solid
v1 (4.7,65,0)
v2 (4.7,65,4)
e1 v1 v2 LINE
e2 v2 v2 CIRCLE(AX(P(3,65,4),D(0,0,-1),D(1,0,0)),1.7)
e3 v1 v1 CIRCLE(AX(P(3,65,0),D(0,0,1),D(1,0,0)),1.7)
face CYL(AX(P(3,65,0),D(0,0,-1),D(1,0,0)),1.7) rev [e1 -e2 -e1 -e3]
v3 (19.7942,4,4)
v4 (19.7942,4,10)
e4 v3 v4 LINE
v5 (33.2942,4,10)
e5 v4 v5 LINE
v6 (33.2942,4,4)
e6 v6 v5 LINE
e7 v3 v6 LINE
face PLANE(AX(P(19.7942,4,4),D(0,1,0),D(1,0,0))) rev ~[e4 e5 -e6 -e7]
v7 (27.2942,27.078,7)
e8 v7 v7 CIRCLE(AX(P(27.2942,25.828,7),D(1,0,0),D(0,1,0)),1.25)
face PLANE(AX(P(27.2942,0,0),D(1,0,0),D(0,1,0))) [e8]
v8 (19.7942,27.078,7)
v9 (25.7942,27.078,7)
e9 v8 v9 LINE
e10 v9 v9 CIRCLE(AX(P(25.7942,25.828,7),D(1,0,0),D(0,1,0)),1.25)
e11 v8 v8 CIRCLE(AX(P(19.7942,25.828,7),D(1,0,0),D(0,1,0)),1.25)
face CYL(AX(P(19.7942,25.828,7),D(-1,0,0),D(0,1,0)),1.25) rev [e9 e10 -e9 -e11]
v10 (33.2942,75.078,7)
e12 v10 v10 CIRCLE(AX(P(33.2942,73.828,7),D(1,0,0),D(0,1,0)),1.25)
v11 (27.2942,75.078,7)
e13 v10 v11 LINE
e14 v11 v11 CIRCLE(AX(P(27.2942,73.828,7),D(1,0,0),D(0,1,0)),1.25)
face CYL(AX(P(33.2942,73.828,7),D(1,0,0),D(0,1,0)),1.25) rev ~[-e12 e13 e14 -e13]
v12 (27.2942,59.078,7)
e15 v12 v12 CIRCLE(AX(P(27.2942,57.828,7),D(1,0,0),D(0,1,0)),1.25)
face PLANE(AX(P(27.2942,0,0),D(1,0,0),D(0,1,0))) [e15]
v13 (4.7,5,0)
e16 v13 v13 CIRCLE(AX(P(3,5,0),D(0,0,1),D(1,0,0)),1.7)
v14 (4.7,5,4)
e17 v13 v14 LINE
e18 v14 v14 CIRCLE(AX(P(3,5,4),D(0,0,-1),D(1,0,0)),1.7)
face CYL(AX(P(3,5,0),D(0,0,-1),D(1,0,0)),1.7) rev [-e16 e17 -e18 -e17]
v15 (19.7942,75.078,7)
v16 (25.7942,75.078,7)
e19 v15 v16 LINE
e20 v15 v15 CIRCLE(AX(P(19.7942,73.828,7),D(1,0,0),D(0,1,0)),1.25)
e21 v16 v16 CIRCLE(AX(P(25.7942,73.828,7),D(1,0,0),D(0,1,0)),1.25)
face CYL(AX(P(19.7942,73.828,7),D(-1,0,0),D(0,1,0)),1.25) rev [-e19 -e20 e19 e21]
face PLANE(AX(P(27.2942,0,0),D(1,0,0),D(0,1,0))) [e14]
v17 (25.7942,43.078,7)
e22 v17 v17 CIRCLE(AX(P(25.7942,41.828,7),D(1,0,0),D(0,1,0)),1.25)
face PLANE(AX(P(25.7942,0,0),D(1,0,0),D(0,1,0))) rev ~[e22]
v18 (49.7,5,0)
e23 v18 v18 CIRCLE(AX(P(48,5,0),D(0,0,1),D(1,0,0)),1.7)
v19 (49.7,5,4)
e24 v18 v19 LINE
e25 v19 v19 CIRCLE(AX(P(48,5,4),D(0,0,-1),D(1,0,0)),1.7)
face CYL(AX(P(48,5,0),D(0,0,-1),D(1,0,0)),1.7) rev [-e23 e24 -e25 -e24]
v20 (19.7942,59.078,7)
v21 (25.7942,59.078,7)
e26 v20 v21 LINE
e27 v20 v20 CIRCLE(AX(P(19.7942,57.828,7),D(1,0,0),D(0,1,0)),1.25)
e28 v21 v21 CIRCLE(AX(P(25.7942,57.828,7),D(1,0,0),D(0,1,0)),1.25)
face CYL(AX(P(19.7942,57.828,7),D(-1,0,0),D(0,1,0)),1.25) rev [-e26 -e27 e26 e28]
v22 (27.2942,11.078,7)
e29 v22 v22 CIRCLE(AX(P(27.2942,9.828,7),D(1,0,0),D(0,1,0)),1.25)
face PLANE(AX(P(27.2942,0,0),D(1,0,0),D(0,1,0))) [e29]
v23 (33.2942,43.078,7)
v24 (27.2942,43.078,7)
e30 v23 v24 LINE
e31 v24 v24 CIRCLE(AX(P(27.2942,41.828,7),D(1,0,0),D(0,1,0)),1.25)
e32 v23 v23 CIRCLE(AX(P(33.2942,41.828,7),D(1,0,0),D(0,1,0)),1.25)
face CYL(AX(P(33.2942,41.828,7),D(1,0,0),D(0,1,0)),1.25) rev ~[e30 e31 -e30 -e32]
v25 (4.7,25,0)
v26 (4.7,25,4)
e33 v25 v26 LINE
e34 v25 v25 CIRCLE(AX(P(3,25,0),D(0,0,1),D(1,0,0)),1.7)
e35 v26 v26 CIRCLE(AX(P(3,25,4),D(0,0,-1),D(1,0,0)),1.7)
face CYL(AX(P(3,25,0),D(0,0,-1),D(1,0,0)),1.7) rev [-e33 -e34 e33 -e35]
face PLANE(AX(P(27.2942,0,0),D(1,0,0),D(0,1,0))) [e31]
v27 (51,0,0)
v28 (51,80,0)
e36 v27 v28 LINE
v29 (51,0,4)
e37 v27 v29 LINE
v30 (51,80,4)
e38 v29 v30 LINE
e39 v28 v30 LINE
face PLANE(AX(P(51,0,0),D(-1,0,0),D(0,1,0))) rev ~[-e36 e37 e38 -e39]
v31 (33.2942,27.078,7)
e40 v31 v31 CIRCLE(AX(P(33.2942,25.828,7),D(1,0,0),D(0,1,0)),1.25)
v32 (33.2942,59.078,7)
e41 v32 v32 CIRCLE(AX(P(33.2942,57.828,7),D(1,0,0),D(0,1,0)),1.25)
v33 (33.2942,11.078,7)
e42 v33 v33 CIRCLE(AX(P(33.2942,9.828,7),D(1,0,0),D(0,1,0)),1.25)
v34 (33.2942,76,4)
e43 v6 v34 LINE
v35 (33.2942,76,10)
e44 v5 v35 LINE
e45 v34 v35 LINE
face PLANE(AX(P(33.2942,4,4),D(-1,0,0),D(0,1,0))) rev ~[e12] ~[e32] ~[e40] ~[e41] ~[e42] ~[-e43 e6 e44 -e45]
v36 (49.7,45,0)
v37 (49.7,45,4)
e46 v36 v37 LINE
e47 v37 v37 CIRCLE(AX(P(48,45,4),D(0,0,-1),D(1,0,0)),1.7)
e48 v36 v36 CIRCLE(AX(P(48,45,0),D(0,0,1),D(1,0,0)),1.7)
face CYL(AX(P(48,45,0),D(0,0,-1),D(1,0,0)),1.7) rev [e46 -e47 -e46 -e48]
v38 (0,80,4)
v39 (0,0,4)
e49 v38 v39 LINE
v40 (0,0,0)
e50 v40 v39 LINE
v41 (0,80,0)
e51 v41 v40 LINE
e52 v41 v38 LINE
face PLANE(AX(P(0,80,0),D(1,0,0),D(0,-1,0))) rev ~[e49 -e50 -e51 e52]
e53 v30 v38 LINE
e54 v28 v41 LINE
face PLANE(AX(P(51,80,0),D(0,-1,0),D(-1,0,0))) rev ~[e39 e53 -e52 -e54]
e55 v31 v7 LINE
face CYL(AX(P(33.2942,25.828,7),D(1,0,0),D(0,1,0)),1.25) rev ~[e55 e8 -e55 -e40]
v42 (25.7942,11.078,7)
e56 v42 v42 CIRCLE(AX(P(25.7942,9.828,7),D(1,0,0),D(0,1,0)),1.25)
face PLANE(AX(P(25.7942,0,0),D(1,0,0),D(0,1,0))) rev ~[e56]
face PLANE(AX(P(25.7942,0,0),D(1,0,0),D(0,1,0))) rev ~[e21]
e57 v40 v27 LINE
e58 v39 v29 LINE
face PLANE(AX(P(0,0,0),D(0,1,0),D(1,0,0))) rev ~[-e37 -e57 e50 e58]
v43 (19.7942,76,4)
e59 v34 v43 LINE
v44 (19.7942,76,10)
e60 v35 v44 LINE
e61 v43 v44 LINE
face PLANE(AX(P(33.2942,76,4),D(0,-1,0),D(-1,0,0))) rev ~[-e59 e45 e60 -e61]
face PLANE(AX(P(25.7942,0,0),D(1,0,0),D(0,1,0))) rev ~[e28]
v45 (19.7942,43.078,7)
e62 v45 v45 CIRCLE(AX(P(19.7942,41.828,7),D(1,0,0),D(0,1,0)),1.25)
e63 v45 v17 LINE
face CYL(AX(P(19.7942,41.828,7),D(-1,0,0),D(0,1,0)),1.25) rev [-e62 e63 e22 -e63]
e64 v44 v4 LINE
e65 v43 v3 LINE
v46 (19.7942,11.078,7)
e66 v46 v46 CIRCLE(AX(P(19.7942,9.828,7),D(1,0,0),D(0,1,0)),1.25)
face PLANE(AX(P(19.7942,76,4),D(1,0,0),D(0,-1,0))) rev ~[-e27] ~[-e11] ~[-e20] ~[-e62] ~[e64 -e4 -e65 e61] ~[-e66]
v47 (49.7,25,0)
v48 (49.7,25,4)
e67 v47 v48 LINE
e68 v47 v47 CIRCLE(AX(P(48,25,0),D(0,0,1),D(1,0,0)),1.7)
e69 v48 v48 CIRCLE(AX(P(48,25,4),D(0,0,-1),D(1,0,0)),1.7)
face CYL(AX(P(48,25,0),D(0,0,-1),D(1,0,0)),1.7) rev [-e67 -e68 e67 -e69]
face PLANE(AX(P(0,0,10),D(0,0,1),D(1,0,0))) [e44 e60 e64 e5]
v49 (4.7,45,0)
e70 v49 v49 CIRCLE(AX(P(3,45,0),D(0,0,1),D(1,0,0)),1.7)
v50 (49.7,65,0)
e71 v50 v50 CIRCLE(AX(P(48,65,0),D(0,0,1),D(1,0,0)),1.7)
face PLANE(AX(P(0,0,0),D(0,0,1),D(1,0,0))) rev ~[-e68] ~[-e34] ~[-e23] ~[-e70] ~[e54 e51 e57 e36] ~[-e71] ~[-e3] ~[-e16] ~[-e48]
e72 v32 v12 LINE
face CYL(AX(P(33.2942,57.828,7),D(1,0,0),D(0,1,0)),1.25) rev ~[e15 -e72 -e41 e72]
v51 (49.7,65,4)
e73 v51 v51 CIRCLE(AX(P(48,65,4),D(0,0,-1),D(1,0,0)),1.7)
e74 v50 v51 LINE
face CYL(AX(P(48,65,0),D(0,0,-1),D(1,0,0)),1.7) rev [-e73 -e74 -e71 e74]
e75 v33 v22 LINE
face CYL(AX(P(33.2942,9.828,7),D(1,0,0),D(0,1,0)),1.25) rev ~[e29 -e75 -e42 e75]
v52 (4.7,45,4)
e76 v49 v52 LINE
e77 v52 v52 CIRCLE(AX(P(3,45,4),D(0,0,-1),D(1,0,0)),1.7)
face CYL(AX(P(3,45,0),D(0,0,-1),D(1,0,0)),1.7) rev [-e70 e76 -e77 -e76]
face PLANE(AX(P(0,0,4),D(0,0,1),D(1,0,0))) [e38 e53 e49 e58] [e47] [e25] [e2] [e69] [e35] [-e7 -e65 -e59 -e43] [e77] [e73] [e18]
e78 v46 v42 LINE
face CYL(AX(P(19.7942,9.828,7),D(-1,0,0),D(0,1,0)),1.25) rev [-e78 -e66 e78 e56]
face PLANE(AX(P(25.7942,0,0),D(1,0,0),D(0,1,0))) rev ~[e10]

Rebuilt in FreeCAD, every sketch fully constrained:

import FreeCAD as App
import Part
import Sketcher

V = App.Vector
Q = App.Units.Quantity

doc = App.newDocument("Part")
body = doc.addObject("PartDesign::Body", "Body")

# Sketch on XY plane
sketch1 = body.newObject("Sketcher::SketchObject", "Sketch")
sketch1.AttachmentSupport = (doc.getObject("XY_Plane"), [""])
sketch1.MapMode = "FlatFace"
sketch1.addGeometry([
    Part.LineSegment(V(0, 80, 0), V(0, 0, 0)),
    Part.LineSegment(V(0, 0, 0), V(51, 0, 0)),
    Part.LineSegment(V(51, 0, 0), V(51, 80, 0)),
    Part.LineSegment(V(51, 80, 0), V(0, 80, 0)),
], False)
sketch1.addConstraint([
    Sketcher.Constraint("Coincident", 0, 2, 1, 1),
    Sketcher.Constraint("Coincident", 1, 2, 2, 1),
    Sketcher.Constraint("Coincident", 2, 2, 3, 1),
    Sketcher.Constraint("Coincident", 3, 2, 0, 1),
    Sketcher.Constraint("Vertical", 0),
    Sketcher.Constraint("Horizontal", 1),
    Sketcher.Constraint("Vertical", 2),
    Sketcher.Constraint("Horizontal", 3),
    Sketcher.Constraint("Coincident", 0, 2, -1, 1),
    Sketcher.Constraint("DistanceX", 1, 1, 1, 2, Q("51 mm")),
    Sketcher.Constraint("DistanceY", 0, 2, 0, 1, Q("80 mm")),
])
pad1 = body.newObject("PartDesign::Pad", "Pad")
pad1.Profile = sketch1
pad1.Length = 4

# Sketch on XY plane
sketch2 = body.newObject("Sketcher::SketchObject", "Sketch001")
sketch2.AttachmentSupport = (doc.getObject("XY_Plane"), [""])
sketch2.MapMode = "FlatFace"
sketch2.AttachmentOffset = App.Placement(V(0, 0, 4), App.Rotation())
sketch2.addGeometry([
    Part.LineSegment(V(20, 76, 0), V(20, 4, 0)),
    Part.LineSegment(V(20, 4, 0), V(33, 4, 0)),
    Part.LineSegment(V(33, 4, 0), V(33, 76, 0)),
    Part.LineSegment(V(33, 76, 0), V(20, 76, 0)),
], False)
sketch2.addConstraint([
    Sketcher.Constraint("Coincident", 0, 2, 1, 1),
    Sketcher.Constraint("Coincident", 1, 2, 2, 1),
    Sketcher.Constraint("Coincident", 2, 2, 3, 1),
    Sketcher.Constraint("Coincident", 3, 2, 0, 1),
    Sketcher.Constraint("Vertical", 0),
    Sketcher.Constraint("Horizontal", 1),
    Sketcher.Constraint("Vertical", 2),
    Sketcher.Constraint("Horizontal", 3),
    Sketcher.Constraint("DistanceY", 0, 2, 0, 1, Q("72 mm")),
    Sketcher.Constraint("DistanceX", 1, 1, 1, 2, Q("13.5 mm")),
    Sketcher.Constraint("DistanceY", -1, 1, 0, 2, Q("4 mm")),
    Sketcher.Constraint("DistanceX", -1, 1, 0, 2, Q("19.7942 mm")),
])
pad2 = body.newObject("PartDesign::Pad", "Pad001")
pad2.Profile = sketch2
pad2.Length = 6

# Sketch on XY plane
sketch3 = body.newObject("Sketcher::SketchObject", "Sketch002")
sketch3.AttachmentSupport = (doc.getObject("XY_Plane"), [""])
sketch3.MapMode = "FlatFace"
sketch3.addGeometry([
    Part.Circle(V(3, 5, 0), V(0, 0, 1), 1.7),  # 0
    Part.Circle(V(3, 25, 0), V(0, 0, 1), 1.7),  # 1
    Part.Circle(V(3, 45, 0), V(0, 0, 1), 1.7),  # 2
    Part.Circle(V(3, 65, 0), V(0, 0, 1), 1.7),  # 3
    Part.Circle(V(48, 5, 0), V(0, 0, 1), 1.7),  # 4
    Part.Circle(V(48, 25, 0), V(0, 0, 1), 1.7),  # 5
    Part.Circle(V(48, 45, 0), V(0, 0, 1), 1.7),  # 6
    Part.Circle(V(48, 65, 0), V(0, 0, 1), 1.7),  # 7
], False)
sketch3.addConstraint([
    Sketcher.Constraint("Equal", 0, 1),
    Sketcher.Constraint("Equal", 1, 2),
    Sketcher.Constraint("Equal", 2, 3),
    Sketcher.Constraint("Equal", 3, 4),
    Sketcher.Constraint("Equal", 4, 5),
    Sketcher.Constraint("Equal", 5, 6),
    Sketcher.Constraint("Equal", 6, 7),
    Sketcher.Constraint("Horizontal", 0, 3, 4, 3),
    Sketcher.Constraint("Horizontal", 1, 3, 5, 3),
    Sketcher.Constraint("Horizontal", 2, 3, 6, 3),
    Sketcher.Constraint("Horizontal", 3, 3, 7, 3),
    Sketcher.Constraint("Vertical", 0, 3, 1, 3),
    Sketcher.Constraint("Vertical", 1, 3, 2, 3),
    Sketcher.Constraint("Vertical", 2, 3, 3, 3),
    Sketcher.Constraint("Vertical", 4, 3, 5, 3),
    Sketcher.Constraint("Vertical", 5, 3, 6, 3),
    Sketcher.Constraint("Vertical", 6, 3, 7, 3),
    Sketcher.Constraint("Diameter", 0, Q("3.4 mm")),
    Sketcher.Constraint("DistanceX", -1, 1, 0, 3, Q("3 mm")),
    Sketcher.Constraint("DistanceY", -1, 1, 0, 3, Q("5 mm")),
    Sketcher.Constraint("DistanceY", -1, 1, 1, 3, Q("25 mm")),
    Sketcher.Constraint("DistanceY", -1, 1, 2, 3, Q("45 mm")),
    Sketcher.Constraint("DistanceY", -1, 1, 3, 3, Q("65 mm")),
    Sketcher.Constraint("DistanceX", -1, 1, 4, 3, Q("48 mm")),
])
pocket1 = body.newObject("PartDesign::Pocket", "Pocket")
pocket1.Profile = sketch3
pocket1.Type = "ThroughAll"
pocket1.Reversed = True

# Sketch on YZ plane
sketch4 = body.newObject("Sketcher::SketchObject", "Sketch003")
sketch4.AttachmentSupport = (doc.getObject("YZ_Plane"), [""])
sketch4.MapMode = "FlatFace"
sketch4.AttachmentOffset = App.Placement(V(0, 0, 33.2942), App.Rotation())
sketch4.addGeometry([
    Part.Circle(V(9.8, 7, 0), V(0, 0, 1), 1.2),  # 0
    Part.Circle(V(25.8, 7, 0), V(0, 0, 1), 1.2),  # 1
    Part.Circle(V(41.8, 7, 0), V(0, 0, 1), 1.2),  # 2
    Part.Circle(V(57.8, 7, 0), V(0, 0, 1), 1.2),  # 3
    Part.Circle(V(73.8, 7, 0), V(0, 0, 1), 1.2),  # 4
], False)
sketch4.addConstraint([
    Sketcher.Constraint("Equal", 0, 1),
    Sketcher.Constraint("Equal", 1, 2),
    Sketcher.Constraint("Equal", 2, 3),
    Sketcher.Constraint("Equal", 3, 4),
    Sketcher.Constraint("Horizontal", 0, 3, 1, 3),
    Sketcher.Constraint("Horizontal", 1, 3, 2, 3),
    Sketcher.Constraint("Horizontal", 2, 3, 3, 3),
    Sketcher.Constraint("Horizontal", 3, 3, 4, 3),
    Sketcher.Constraint("Diameter", 0, Q("2.5 mm")),
    Sketcher.Constraint("DistanceY", -1, 1, 0, 3, Q("7 mm")),
    Sketcher.Constraint("DistanceX", -1, 1, 0, 3, Q("9.828 mm")),
    Sketcher.Constraint("DistanceX", -1, 1, 1, 3, Q("25.828 mm")),
    Sketcher.Constraint("DistanceX", -1, 1, 2, 3, Q("41.828 mm")),
    Sketcher.Constraint("DistanceX", -1, 1, 3, 3, Q("57.828 mm")),
    Sketcher.Constraint("DistanceX", -1, 1, 4, 3, Q("73.828 mm")),
])
pocket2 = body.newObject("PartDesign::Pocket", "Pocket001")
pocket2.Profile = sketch4
pocket2.Length = 6

# Sketch on YZ plane
sketch5 = body.newObject("Sketcher::SketchObject", "Sketch004")
sketch5.AttachmentSupport = (doc.getObject("YZ_Plane"), [""])
sketch5.MapMode = "FlatFace"
sketch5.AttachmentOffset = App.Placement(V(0, 0, 19.7942), App.Rotation())
sketch5.addGeometry([
    Part.Circle(V(9.8, 7, 0), V(0, 0, 1), 1.2),  # 0
    Part.Circle(V(25.8, 7, 0), V(0, 0, 1), 1.2),  # 1
    Part.Circle(V(41.8, 7, 0), V(0, 0, 1), 1.2),  # 2
    Part.Circle(V(57.8, 7, 0), V(0, 0, 1), 1.2),  # 3
    Part.Circle(V(73.8, 7, 0), V(0, 0, 1), 1.2),  # 4
], False)
sketch5.addConstraint([
    Sketcher.Constraint("Equal", 0, 1),
    Sketcher.Constraint("Equal", 1, 2),
    Sketcher.Constraint("Equal", 2, 3),
    Sketcher.Constraint("Equal", 3, 4),
    Sketcher.Constraint("Horizontal", 0, 3, 1, 3),
    Sketcher.Constraint("Horizontal", 1, 3, 2, 3),
    Sketcher.Constraint("Horizontal", 2, 3, 3, 3),
    Sketcher.Constraint("Horizontal", 3, 3, 4, 3),
    Sketcher.Constraint("Diameter", 0, Q("2.5 mm")),
    Sketcher.Constraint("DistanceY", -1, 1, 0, 3, Q("7 mm")),
    Sketcher.Constraint("DistanceX", -1, 1, 0, 3, Q("9.828 mm")),
    Sketcher.Constraint("DistanceX", -1, 1, 1, 3, Q("25.828 mm")),
    Sketcher.Constraint("DistanceX", -1, 1, 2, 3, Q("41.828 mm")),
    Sketcher.Constraint("DistanceX", -1, 1, 3, 3, Q("57.828 mm")),
    Sketcher.Constraint("DistanceX", -1, 1, 4, 3, Q("73.828 mm")),
])
pocket3 = body.newObject("PartDesign::Pocket", "Pocket002")
pocket3.Profile = sketch5
pocket3.Length = 6
pocket3.Reversed = True

doc.recompute()
